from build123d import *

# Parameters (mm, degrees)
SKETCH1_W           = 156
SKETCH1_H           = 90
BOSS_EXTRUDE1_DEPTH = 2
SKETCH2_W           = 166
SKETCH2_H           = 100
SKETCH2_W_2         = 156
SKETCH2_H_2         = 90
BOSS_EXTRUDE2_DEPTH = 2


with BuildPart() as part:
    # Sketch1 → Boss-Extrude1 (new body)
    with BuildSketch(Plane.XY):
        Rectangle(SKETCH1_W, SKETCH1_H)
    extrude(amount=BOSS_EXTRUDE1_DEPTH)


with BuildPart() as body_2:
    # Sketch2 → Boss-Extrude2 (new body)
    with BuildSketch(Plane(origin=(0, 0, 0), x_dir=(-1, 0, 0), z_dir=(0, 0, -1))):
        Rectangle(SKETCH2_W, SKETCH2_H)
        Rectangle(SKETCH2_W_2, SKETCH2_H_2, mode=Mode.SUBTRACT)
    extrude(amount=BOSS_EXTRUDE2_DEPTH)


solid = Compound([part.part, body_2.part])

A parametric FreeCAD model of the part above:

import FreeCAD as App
import Part
import Sketcher

V = App.Vector

doc = App.newDocument("Part")
params = doc.addObject("Spreadsheet::Sheet", "Params")
for row, (alias, value) in enumerate([
    ("sketch1_width", "156 mm"),
    ("sketch1_height", "90 mm"),
    ("pad1_length", "2 mm"),
    ("sketch2_width", "166 mm"),
    ("sketch2_width2", "156 mm"),
    ("sketch2_height", "100 mm"),
    ("sketch2_height2", "90 mm"),
    ("pad2_length", "2 mm"),
], start=1):
    params.set(f"A{row}", alias)
    params.set(f"B{row}", "=" + value)
    params.setAlias(f"B{row}", alias)

body = doc.addObject("PartDesign::Body", "Body")

# Sketch on XY plane
sketch1 = body.newObject("Sketcher::SketchObject", "Sketch")
sketch1.AttachmentSupport = (doc.getObject("XY_Plane"), [""])
sketch1.MapMode = "FlatFace"
sketch1.addGeometry([
    Part.LineSegment(V(-78, 45, 0), V(-78, -45, 0)),
    Part.LineSegment(V(-78, -45, 0), V(78, -45, 0)),
    Part.LineSegment(V(78, -45, 0), V(78, 45, 0)),
    Part.LineSegment(V(78, 45, 0), V(-78, 45, 0)),
], False)
sketch1.addConstraint([
    Sketcher.Constraint("Coincident", 0, 2, 1, 1),
    Sketcher.Constraint("Coincident", 1, 2, 2, 1),
    Sketcher.Constraint("Coincident", 2, 2, 3, 1),
    Sketcher.Constraint("Coincident", 3, 2, 0, 1),
    Sketcher.Constraint("Vertical", 0),
    Sketcher.Constraint("Horizontal", 1),
    Sketcher.Constraint("Vertical", 2),
    Sketcher.Constraint("Horizontal", 3),
    Sketcher.Constraint("Symmetric", 0, 2, 2, 2, -1, 1),
    Sketcher.Constraint("DistanceX", 1, 1, 1, 2, 156.0),
    Sketcher.Constraint("DistanceY", 0, 2, 0, 1, 90.0),
])
sketch1.setExpression("Constraints[9]", "Params.sketch1_width")
sketch1.setExpression("Constraints[10]", "Params.sketch1_height")
pad1 = body.newObject("PartDesign::Pad", "Pad")
pad1.Profile = sketch1
pad1.setExpression("Length", "Params.pad1_length")
body2 = doc.addObject("PartDesign::Body", "Body001")

# Sketch on XY plane
sketch2 = body2.newObject("Sketcher::SketchObject", "Sketch001")
sketch2.AttachmentSupport = (doc.getObject("XY_Plane001"), [""])
sketch2.MapMode = "FlatFace"
sketch2.addGeometry([
    Part.LineSegment(V(83, 50, 0), V(83, -50, 0)),  # 0
    Part.LineSegment(V(83, -50, 0), V(-83, -50, 0)),  # 1
    Part.LineSegment(V(-83, -50, 0), V(-83, 50, 0)),  # 2
    Part.LineSegment(V(-83, 50, 0), V(83, 50, 0)),  # 3
    Part.LineSegment(V(-78, -45, 0), V(78, -45, 0)),  # 4
    Part.LineSegment(V(78, -45, 0), V(78, 45, 0)),  # 5
    Part.LineSegment(V(78, 45, 0), V(-78, 45, 0)),  # 6
    Part.LineSegment(V(-78, 45, 0), V(-78, -45, 0)),  # 7
], False)
sketch2.addConstraint([
    Sketcher.Constraint("Coincident", 0, 2, 1, 1),
    Sketcher.Constraint("Coincident", 1, 2, 2, 1),
    Sketcher.Constraint("Coincident", 2, 2, 3, 1),
    Sketcher.Constraint("Coincident", 3, 2, 0, 1),
    Sketcher.Constraint("Coincident", 4, 2, 5, 1),
    Sketcher.Constraint("Coincident", 5, 2, 6, 1),
    Sketcher.Constraint("Coincident", 6, 2, 7, 1),
    Sketcher.Constraint("Coincident", 7, 2, 4, 1),
    Sketcher.Constraint("Vertical", 0),
    Sketcher.Constraint("Horizontal", 1),
    Sketcher.Constraint("Vertical", 2),
    Sketcher.Constraint("Horizontal", 3),
    Sketcher.Constraint("Horizontal", 4),
    Sketcher.Constraint("Vertical", 5),
    Sketcher.Constraint("Horizontal", 6),
    Sketcher.Constraint("Vertical", 7),
    Sketcher.Constraint("Symmetric", 0, 2, 2, 2, -1, 1),
    Sketcher.Constraint("Symmetric", 4, 2, 6, 2, -1, 1),
    Sketcher.Constraint("DistanceX", 1, 2, 1, 1, 166.0),
    Sketcher.Constraint("DistanceX", 4, 1, 4, 2, 156.0),
    Sketcher.Constraint("DistanceY", 0, 2, 0, 1, 100.0),
    Sketcher.Constraint("DistanceY", 5, 1, 5, 2, 90.0),
])
sketch2.setExpression("Constraints[18]", "Params.sketch2_width")
sketch2.setExpression("Constraints[19]", "Params.sketch2_width2")
sketch2.setExpression("Constraints[20]", "Params.sketch2_height")
sketch2.setExpression("Constraints[21]", "Params.sketch2_height2")
pad2 = body2.newObject("PartDesign::Pad", "Pad001")
pad2.Profile = sketch2
pad2.setExpression("Length", "Params.pad2_length")
pad2.Reversed = True

doc.recompute()
